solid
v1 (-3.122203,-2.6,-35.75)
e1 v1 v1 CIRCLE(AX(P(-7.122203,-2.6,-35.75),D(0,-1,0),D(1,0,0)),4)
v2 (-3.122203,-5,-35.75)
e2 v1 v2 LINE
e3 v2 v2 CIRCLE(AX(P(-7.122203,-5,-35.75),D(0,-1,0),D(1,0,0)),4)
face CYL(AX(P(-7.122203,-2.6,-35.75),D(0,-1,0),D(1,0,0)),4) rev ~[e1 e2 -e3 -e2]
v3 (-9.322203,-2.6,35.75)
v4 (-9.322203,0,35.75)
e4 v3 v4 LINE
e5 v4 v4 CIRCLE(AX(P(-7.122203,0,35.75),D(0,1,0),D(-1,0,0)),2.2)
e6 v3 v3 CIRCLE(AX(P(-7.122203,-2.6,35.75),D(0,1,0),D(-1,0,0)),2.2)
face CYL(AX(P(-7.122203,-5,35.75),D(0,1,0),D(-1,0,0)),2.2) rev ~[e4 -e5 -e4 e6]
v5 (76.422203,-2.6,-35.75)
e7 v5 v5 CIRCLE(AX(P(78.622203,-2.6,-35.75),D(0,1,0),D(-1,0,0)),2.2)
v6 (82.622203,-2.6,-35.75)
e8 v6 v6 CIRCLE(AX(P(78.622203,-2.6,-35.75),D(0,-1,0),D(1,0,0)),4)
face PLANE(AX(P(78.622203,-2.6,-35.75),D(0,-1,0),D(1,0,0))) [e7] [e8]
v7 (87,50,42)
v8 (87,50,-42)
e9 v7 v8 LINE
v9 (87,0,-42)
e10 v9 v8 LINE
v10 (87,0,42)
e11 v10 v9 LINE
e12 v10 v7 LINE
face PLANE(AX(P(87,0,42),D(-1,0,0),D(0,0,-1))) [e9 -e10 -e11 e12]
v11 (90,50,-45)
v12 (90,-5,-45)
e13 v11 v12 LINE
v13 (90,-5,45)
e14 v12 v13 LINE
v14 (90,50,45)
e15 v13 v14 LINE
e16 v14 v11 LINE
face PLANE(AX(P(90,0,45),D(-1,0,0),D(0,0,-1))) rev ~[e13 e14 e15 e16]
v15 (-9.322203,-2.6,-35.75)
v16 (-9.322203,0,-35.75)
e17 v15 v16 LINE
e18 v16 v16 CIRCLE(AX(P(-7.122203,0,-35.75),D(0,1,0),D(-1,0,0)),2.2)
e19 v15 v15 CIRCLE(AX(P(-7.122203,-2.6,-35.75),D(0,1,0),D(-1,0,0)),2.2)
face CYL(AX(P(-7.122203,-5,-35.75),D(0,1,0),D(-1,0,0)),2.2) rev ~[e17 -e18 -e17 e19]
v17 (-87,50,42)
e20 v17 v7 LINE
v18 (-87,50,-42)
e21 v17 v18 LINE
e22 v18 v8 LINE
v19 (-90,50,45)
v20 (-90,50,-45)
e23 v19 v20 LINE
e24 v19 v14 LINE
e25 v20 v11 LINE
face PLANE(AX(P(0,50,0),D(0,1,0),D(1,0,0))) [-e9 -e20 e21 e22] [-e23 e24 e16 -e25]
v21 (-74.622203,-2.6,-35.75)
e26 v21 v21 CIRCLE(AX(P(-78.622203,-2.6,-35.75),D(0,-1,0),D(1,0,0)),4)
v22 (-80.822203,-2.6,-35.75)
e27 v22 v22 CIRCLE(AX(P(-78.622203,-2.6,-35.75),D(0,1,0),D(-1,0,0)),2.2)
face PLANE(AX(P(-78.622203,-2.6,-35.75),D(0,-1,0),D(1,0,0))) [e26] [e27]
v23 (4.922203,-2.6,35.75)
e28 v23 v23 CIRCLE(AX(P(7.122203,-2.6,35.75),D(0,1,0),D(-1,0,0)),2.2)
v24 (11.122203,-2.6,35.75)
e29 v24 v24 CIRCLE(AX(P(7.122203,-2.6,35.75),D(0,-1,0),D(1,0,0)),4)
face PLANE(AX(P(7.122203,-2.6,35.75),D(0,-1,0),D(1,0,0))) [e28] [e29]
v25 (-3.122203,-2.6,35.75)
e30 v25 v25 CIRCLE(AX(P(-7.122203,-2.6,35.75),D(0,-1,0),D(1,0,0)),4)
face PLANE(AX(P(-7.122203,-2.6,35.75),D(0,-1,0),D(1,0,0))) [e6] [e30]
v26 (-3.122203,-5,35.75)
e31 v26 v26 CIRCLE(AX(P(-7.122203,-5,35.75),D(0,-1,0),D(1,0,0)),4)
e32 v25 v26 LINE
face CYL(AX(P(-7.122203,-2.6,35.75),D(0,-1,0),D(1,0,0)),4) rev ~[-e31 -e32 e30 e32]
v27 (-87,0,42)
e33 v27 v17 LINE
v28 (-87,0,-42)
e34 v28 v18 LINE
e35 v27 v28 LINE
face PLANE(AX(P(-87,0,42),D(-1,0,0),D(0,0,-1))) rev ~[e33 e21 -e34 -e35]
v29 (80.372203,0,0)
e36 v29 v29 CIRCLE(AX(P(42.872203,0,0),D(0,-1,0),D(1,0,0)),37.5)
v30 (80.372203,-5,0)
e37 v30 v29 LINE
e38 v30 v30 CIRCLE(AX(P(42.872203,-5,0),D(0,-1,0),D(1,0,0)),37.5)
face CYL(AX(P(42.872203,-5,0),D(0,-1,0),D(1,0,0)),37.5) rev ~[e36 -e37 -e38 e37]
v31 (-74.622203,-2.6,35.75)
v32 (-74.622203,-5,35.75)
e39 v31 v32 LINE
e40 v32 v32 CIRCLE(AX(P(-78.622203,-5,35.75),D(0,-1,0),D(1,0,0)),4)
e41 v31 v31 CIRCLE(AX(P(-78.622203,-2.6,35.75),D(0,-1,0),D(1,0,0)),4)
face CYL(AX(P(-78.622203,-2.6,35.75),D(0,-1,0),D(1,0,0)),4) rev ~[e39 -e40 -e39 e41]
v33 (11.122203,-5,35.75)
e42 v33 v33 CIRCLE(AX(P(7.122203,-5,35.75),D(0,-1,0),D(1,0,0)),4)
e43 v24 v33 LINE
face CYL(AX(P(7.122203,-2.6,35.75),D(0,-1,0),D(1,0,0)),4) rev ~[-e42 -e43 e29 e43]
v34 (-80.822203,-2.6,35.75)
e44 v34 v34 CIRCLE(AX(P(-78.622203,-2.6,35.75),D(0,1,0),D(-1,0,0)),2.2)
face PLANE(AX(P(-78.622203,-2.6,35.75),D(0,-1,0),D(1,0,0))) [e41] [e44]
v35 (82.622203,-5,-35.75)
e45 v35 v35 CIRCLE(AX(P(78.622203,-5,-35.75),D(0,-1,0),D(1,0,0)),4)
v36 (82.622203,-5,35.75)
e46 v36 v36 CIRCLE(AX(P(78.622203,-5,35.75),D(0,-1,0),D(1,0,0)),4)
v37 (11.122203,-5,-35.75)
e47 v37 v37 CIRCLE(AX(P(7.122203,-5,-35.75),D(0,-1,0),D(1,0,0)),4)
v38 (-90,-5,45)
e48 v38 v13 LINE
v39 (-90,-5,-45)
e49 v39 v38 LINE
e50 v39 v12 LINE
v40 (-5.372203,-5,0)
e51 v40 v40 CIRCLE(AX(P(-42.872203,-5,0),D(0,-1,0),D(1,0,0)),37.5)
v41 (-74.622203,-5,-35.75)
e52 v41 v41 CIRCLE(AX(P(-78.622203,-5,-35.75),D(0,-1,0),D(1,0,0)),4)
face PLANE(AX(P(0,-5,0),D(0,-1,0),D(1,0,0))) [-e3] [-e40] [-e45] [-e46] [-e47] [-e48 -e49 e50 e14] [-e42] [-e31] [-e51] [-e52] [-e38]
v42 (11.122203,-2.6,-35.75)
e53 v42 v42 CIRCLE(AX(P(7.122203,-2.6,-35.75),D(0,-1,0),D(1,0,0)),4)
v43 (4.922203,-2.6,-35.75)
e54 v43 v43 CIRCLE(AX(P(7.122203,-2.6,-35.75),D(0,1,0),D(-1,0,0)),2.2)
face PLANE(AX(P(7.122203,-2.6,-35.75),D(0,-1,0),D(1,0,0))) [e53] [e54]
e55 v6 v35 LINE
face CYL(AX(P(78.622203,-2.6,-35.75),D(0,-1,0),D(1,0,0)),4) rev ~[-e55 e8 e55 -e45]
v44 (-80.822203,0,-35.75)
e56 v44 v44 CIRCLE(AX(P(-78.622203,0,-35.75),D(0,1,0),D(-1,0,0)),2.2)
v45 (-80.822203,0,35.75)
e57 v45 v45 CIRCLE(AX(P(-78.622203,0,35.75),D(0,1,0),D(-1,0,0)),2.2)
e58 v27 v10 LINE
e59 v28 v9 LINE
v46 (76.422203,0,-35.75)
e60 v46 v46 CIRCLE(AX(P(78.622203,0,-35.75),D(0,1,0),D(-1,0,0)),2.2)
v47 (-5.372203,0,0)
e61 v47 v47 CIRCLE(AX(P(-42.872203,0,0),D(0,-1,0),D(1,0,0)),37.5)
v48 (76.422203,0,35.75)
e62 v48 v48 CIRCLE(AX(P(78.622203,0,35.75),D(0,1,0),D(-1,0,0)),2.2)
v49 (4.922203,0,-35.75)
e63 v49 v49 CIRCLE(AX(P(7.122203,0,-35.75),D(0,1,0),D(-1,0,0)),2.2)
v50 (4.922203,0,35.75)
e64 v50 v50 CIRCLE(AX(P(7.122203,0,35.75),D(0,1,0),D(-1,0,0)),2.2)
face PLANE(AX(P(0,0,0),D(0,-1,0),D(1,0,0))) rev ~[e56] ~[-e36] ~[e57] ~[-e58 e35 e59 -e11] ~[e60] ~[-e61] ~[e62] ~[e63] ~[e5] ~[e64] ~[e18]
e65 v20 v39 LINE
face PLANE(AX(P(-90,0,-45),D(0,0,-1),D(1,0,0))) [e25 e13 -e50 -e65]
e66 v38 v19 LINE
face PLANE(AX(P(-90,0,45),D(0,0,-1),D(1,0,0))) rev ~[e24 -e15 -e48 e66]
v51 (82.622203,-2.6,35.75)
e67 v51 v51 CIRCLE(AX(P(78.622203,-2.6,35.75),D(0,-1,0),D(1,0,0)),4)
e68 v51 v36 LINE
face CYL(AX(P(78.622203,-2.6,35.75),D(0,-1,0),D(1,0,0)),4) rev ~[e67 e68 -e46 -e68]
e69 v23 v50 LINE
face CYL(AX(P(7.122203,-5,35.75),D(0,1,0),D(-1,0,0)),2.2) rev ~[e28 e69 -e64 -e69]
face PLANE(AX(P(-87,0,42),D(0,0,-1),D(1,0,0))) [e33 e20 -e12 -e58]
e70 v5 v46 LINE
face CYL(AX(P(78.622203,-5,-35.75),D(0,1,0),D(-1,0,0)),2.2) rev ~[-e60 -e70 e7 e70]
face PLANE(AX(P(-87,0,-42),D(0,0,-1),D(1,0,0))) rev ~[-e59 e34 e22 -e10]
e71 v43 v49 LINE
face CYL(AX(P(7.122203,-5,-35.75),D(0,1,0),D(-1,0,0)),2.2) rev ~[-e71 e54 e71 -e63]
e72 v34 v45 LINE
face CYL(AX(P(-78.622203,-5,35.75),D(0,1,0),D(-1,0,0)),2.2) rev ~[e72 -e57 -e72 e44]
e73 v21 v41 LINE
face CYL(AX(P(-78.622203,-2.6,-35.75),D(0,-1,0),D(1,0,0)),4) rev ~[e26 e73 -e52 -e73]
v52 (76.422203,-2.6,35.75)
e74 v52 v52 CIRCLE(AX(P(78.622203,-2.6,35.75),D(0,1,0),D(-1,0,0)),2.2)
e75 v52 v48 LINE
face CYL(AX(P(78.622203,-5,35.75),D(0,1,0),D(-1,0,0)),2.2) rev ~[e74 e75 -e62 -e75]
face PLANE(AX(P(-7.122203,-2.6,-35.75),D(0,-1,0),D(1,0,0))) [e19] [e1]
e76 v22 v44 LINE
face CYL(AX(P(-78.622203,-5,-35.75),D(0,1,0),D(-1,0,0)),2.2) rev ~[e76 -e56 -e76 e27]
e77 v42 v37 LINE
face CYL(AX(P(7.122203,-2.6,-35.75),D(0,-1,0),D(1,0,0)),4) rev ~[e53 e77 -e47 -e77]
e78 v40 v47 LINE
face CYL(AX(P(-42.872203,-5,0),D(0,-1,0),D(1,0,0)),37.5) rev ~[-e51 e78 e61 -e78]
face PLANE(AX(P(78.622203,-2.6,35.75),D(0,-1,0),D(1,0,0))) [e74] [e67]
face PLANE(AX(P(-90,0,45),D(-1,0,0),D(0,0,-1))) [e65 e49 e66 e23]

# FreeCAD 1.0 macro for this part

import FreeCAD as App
import Part
import Sketcher

V = App.Vector
Q = App.Units.Quantity

doc = App.newDocument("Part")
body = doc.addObject("PartDesign::Body", "Body")

sketch1 = body.newObject("Sketcher::SketchObject", "Sketch")
sketch1.AttachmentSupport = (doc.getObject("XZ_Plane"), [""])
sketch1.MapMode = "FlatFace"
sketch1.addGeometry([
    Part.LineSegment(V(-90, 45, 0), V(-90, -45, 0)),
    Part.LineSegment(V(-90, -45, 0), V(90, -45, 0)),
    Part.LineSegment(V(90, -45, 0), V(90, 45, 0)),
    Part.LineSegment(V(90, 45, 0), V(-90, 45, 0)),
], False)
sketch1.addConstraint([
    Sketcher.Constraint("Coincident", 0, 2, 1, 1),
    Sketcher.Constraint("Coincident", 1, 2, 2, 1),
    Sketcher.Constraint("Coincident", 2, 2, 3, 1),
    Sketcher.Constraint("Coincident", 3, 2, 0, 1),
    Sketcher.Constraint("Vertical", 0),
    Sketcher.Constraint("Horizontal", 1),
    Sketcher.Constraint("Vertical", 2),
    Sketcher.Constraint("Horizontal", 3),
    Sketcher.Constraint("Symmetric", 0, 2, 2, 2, -1, 1),
    Sketcher.Constraint("DistanceX", 1, 1, 1, 2, Q("180 mm")),
    Sketcher.Constraint("DistanceY", 0, 2, 0, 1, Q("90 mm")),
])
pad1 = body.newObject("PartDesign::Pad", "Pad")
pad1.Profile = sketch1
pad1.Length = 5

sketch2 = body.newObject("Sketcher::SketchObject", "Sketch001")
sketch2.AttachmentSupport = (doc.getObject("XZ_Plane"), [""])
sketch2.MapMode = "FlatFace"
sketch2.AttachmentOffset = App.Placement(V(0, 0, 5), App.Rotation())
sketch2.addGeometry([
    Part.Circle(V(-42.872203, 0, 0), V(0, 0, 1), 37.5),
    Part.Circle(V(42.872203, 0, 0), V(0, 0, 1), 37.5),
], False)
sketch2.addConstraint([
    Sketcher.Constraint("Equal", 0, 1),
    Sketcher.Constraint("Symmetric", 0, 3, 1, 3, -1, 1),
    Sketcher.Constraint("PointOnObject", 0, 3, -1),
    Sketcher.Constraint("Diameter", 0, Q("75 mm")),
    Sketcher.Constraint("DistanceX", 0, 3, -1, 1, Q("42.872203 mm")),
])
pocket1 = body.newObject("PartDesign::Pocket", "Pocket")
pocket1.Profile = sketch2
pocket1.Length = 5

sketch3 = body.newObject("Sketcher::SketchObject", "Sketch002")
sketch3.AttachmentSupport = (doc.getObject("XZ_Plane"), [""])
sketch3.MapMode = "FlatFace"
sketch3.AttachmentOffset = App.Placement(V(0, 0, 5), App.Rotation())
sketch3.addGeometry([
    Part.Circle(V(-78.622203, 35.75, 0), V(0, 0, 1), 2.2),
    Part.Circle(V(-7.122203, 35.75, 0), V(0, 0, 1), 2.2),
    Part.Circle(V(-78.622203, -35.75, 0), V(0, 0, 1), 2.2),
    Part.Circle(V(-7.122203, -35.75, 0), V(0, 0, 1), 2.2),
    Part.Circle(V(7.122203, 35.75, 0), V(0, 0, 1), 2.2),
    Part.Circle(V(78.622203, 35.75, 0), V(0, 0, 1), 2.2),
    Part.Circle(V(78.622203, -35.75, 0), V(0, 0, 1), 2.2),
    Part.Circle(V(7.122203, -35.75, 0), V(0, 0, 1), 2.2),
], False)
sketch3.addConstraint([
    Sketcher.Constraint("Equal", 0, 1),
    Sketcher.Constraint("Equal", 1, 2),
    Sketcher.Constraint("Equal", 2, 3),
    Sketcher.Constraint("Equal", 3, 4),
    Sketcher.Constraint("Equal", 4, 5),
    Sketcher.Constraint("Equal", 5, 6),
    Sketcher.Constraint("Equal", 6, 7),
    Sketcher.Constraint("Symmetric", 3, 3, 4, 3, -1, 1),
    Sketcher.Constraint("Symmetric", 2, 3, 5, 3, -1, 1),
    Sketcher.Constraint("Symmetric", 0, 3, 6, 3, -1, 1),
    Sketcher.Constraint("Symmetric", 1, 3, 7, 3, -1, 1),
    Sketcher.Constraint("Symmetric", 1, 3, 4, 3, -2),
    Sketcher.Constraint("Symmetric", 0, 3, 5, 3, -2),
    Sketcher.Constraint("Horizontal", 0, 3, 1, 3),
    Sketcher.Constraint("Diameter", 0, Q("4.4 mm")),
    Sketcher.Constraint("DistanceX", 0, 3, 1, 3, Q("71.5 mm")),
    Sketcher.Constraint("DistanceY", 2, 3, 0, 3, Q("71.5 mm")),
    Sketcher.Constraint("DistanceX", 0, 3, -1, 1, Q("78.622203 mm")),
])
doc.recompute()
hole = body.newObject("PartDesign::Hole", "Hole")
hole.Profile = sketch3
hole.ThreadType = "None"
hole.Diameter = 4.4
hole.DepthType = "Dimension"
hole.Depth = 25
hole.DrillPoint = "Flat"
hole.HoleCutType = "Counterbore"
hole.HoleCutDiameter = 8
hole.HoleCutDepth = 2.4

sketch4 = body.newObject("Sketcher::SketchObject", "Sketch003")
sketch4.AttachmentSupport = (doc.getObject("XZ_Plane"), [""])
sketch4.MapMode = "FlatFace"
sketch4.addGeometry([
    Part.LineSegment(V(-90, -45, 0), V(-90, 45, 0)),
    Part.LineSegment(V(-90, 45, 0), V(90, 45, 0)),
    Part.LineSegment(V(90, 45, 0), V(90, -45, 0)),
    Part.LineSegment(V(90, -45, 0), V(-90, -45, 0)),
    Part.LineSegment(V(87, 42, 0), V(-87, 42, 0)),
    Part.LineSegment(V(-87, 42, 0), V(-87, -42, 0)),
    Part.LineSegment(V(-87, -42, 0), V(87, -42, 0)),
    Part.LineSegment(V(87, -42, 0), V(87, 42, 0)),
], False)
sketch4.addConstraint([
    Sketcher.Constraint("Coincident", 0, 2, 1, 1),
    Sketcher.Constraint("Coincident", 1, 2, 2, 1),
    Sketcher.Constraint("Coincident", 2, 2, 3, 1),
    Sketcher.Constraint("Coincident", 3, 2, 0, 1),
    Sketcher.Constraint("Coincident", 4, 2, 5, 1),
    Sketcher.Constraint("Coincident", 5, 2, 6, 1),
    Sketcher.Constraint("Coincident", 6, 2, 7, 1),
    Sketcher.Constraint("Coincident", 7, 2, 4, 1),
    Sketcher.Constraint("Vertical", 0),
    Sketcher.Constraint("Horizontal", 1),
    Sketcher.Constraint("Vertical", 2),
    Sketcher.Constraint("Horizontal", 3),
    Sketcher.Constraint("Horizontal", 4),
    Sketcher.Constraint("Vertical", 5),
    Sketcher.Constraint("Horizontal", 6),
    Sketcher.Constraint("Vertical", 7),
    Sketcher.Constraint("Symmetric", 0, 2, 2, 2, -1, 1),
    Sketcher.Constraint("Symmetric", 4, 2, 6, 2, -1, 1),
    Sketcher.Constraint("DistanceX", 1, 1, 1, 2, Q("180 mm")),
    Sketcher.Constraint("DistanceX", 4, 2, 4, 1, Q("174 mm")),
    Sketcher.Constraint("DistanceY", 0, 1, 0, 2, Q("90 mm")),
    Sketcher.Constraint("DistanceY", 5, 2, 5, 1, Q("84 mm")),
])
pad2 = body.newObject("PartDesign::Pad", "Pad001")
pad2.Profile = sketch4
pad2.Length = 50
pad2.Reversed = True

doc.recompute()
